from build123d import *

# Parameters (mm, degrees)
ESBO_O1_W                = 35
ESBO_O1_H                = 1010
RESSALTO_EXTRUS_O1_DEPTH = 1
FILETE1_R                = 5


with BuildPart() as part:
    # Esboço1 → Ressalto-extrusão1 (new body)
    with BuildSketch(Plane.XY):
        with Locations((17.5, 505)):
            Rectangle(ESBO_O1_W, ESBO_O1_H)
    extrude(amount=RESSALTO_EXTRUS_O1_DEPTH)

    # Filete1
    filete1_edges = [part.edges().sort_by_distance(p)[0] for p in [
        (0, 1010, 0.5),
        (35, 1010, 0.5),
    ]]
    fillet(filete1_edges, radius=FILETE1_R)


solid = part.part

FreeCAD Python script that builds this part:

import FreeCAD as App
import Part
import Sketcher
from FreeCAD import Vector
Q = App.Units.Quantity


def edges_at(feature, points):
    """Names of the edges that pass closest to the given points."""
    edges = feature.Shape.Edges
    near = lambda p: min(range(len(edges)), key=lambda i: edges[i].distToShape(Part.Vertex(*p))[0])
    return sorted({f"Edge{near(p) + 1}" for p in points})

doc = App.newDocument("Part")
body = doc.addObject("PartDesign::Body", "Body")

# Sketch on XY plane
sketch1 = doc.addObject("Sketcher::SketchObject", "Sketch")
body.addObject(sketch1)
sketch1.AttachmentSupport = (doc.XY_Plane, [""])
sketch1.MapMode = "FlatFace"
sketch1.addGeometry([
    Part.LineSegment(Vector(0, 1010, 0), Vector(0, 0, 0)),
    Part.LineSegment(Vector(0, 0, 0), Vector(35, 0, 0)),
    Part.LineSegment(Vector(35, 0, 0), Vector(35, 1010, 0)),
    Part.LineSegment(Vector(35, 1010, 0), Vector(0, 1010, 0)),
], False)
sketch1.addConstraint([
    Sketcher.Constraint("Coincident", 0, 2, 1, 1),
    Sketcher.Constraint("Coincident", 1, 2, 2, 1),
    Sketcher.Constraint("Coincident", 2, 2, 3, 1),
    Sketcher.Constraint("Coincident", 3, 2, 0, 1),
    Sketcher.Constraint("Vertical", 0),
    Sketcher.Constraint("Horizontal", 1),
    Sketcher.Constraint("Vertical", 2),
    Sketcher.Constraint("Horizontal", 3),
    Sketcher.Constraint("Coincident", 0, 2, -1, 1),
    Sketcher.Constraint("DistanceX", 1, 1, 1, 2, Q("35 mm")),
    Sketcher.Constraint("DistanceY", 0, 2, 0, 1, Q("1010 mm")),
])
pad1 = doc.addObject("PartDesign::Pad", "Pad")
body.addObject(pad1)
pad1.Profile = sketch1
pad1.Length = 1
doc.recompute()

fillet = doc.addObject("PartDesign::Fillet", "Fillet")
body.addObject(fillet)
fillet.Base = (pad1, edges_at(pad1, [(0, 1010, 0.5), (35, 1010, 0.5)]))
fillet.Radius = 5

doc.recompute()
